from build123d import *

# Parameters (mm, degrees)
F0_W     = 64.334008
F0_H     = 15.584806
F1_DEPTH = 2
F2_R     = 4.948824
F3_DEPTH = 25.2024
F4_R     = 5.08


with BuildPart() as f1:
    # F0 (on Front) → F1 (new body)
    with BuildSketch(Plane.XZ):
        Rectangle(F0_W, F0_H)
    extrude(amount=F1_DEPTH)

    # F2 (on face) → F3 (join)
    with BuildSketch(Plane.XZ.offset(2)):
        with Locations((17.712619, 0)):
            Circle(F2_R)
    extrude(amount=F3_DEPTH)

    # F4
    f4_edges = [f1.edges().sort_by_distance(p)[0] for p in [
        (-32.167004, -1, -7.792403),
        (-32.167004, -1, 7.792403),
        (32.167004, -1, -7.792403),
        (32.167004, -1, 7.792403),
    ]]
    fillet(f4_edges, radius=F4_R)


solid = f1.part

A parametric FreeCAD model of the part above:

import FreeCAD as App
import Part
import Sketcher

V = App.Vector
Q = App.Units.Quantity


def edges_at(feature, points):
    """Names of the edges that pass closest to the given points."""
    edges = feature.Shape.Edges
    near = lambda p: min(range(len(edges)), key=lambda i: edges[i].distToShape(Part.Vertex(*p))[0])
    return sorted({f"Edge{near(p) + 1}" for p in points})

doc = App.newDocument("Part")
body = doc.addObject("PartDesign::Body", "Body")

# Sketch on XZ plane
sketch1 = doc.addObject("Sketcher::SketchObject", "Sketch")
body.addObject(sketch1)
sketch1.AttachmentSupport = (doc.XZ_Plane, [""])
sketch1.MapMode = "FlatFace"
sketch1.addGeometry(Part.LineSegment(V(-32.167004, 7.792403, 0), V(-32.167004, -7.792403, 0)), False)
sketch1.addGeometry(Part.LineSegment(V(-32.167004, -7.792403, 0), V(32.167004, -7.792403, 0)), False)
sketch1.addGeometry(Part.LineSegment(V(32.167004, -7.792403, 0), V(32.167004, 7.792403, 0)), False)
sketch1.addGeometry(Part.LineSegment(V(32.167004, 7.792403, 0), V(-32.167004, 7.792403, 0)), False)
sketch1.addConstraint(Sketcher.Constraint("Coincident", 0, 2, 1, 1))
sketch1.addConstraint(Sketcher.Constraint("Coincident", 1, 2, 2, 1))
sketch1.addConstraint(Sketcher.Constraint("Coincident", 2, 2, 3, 1))
sketch1.addConstraint(Sketcher.Constraint("Coincident", 3, 2, 0, 1))
sketch1.addConstraint(Sketcher.Constraint("Vertical", 0))
sketch1.addConstraint(Sketcher.Constraint("Horizontal", 1))
sketch1.addConstraint(Sketcher.Constraint("Vertical", 2))
sketch1.addConstraint(Sketcher.Constraint("Horizontal", 3))
sketch1.addConstraint(Sketcher.Constraint("Symmetric", 0, 2, 2, 2, -1, 1))
sketch1.addConstraint(Sketcher.Constraint("DistanceX", 1, 1, 1, 2, Q("64.334008 mm")))
sketch1.addConstraint(Sketcher.Constraint("DistanceY", 0, 2, 0, 1, Q("15.584806 mm")))
pad1 = doc.addObject("PartDesign::Pad", "Pad")
body.addObject(pad1)
pad1.Profile = sketch1
pad1.Length = 2

# Sketch on XZ plane
sketch2 = doc.addObject("Sketcher::SketchObject", "Sketch001")
body.addObject(sketch2)
sketch2.AttachmentSupport = (doc.XZ_Plane, [""])
sketch2.MapMode = "FlatFace"
sketch2.AttachmentOffset = App.Placement(V(0, 0, 2), App.Rotation())
sketch2.addGeometry(Part.Circle(V(17.712619, 0, 0), V(0, 0, 1), 4.948824), False)
sketch2.addConstraint(Sketcher.Constraint("PointOnObject", 0, 3, -1))
sketch2.addConstraint(Sketcher.Constraint("Diameter", 0, Q("9.897648 mm")))
sketch2.addConstraint(Sketcher.Constraint("DistanceX", -1, 1, 0, 3, Q("17.712619 mm")))
pad2 = doc.addObject("PartDesign::Pad", "Pad001")
body.addObject(pad2)
pad2.Profile = sketch2
pad2.Length = 25.2024
doc.recompute()

fillet = doc.addObject("PartDesign::Fillet", "Fillet")
body.addObject(fillet)
fillet.Base = (pad2, edges_at(pad2, [
    (-32.167, -1, -7.792),
    (-32.167, -1, 7.792),
    (32.167, -1, -7.792),
    (32.167, -1, 7.792),
]))
fillet.Radius = 5.08

doc.recompute()
